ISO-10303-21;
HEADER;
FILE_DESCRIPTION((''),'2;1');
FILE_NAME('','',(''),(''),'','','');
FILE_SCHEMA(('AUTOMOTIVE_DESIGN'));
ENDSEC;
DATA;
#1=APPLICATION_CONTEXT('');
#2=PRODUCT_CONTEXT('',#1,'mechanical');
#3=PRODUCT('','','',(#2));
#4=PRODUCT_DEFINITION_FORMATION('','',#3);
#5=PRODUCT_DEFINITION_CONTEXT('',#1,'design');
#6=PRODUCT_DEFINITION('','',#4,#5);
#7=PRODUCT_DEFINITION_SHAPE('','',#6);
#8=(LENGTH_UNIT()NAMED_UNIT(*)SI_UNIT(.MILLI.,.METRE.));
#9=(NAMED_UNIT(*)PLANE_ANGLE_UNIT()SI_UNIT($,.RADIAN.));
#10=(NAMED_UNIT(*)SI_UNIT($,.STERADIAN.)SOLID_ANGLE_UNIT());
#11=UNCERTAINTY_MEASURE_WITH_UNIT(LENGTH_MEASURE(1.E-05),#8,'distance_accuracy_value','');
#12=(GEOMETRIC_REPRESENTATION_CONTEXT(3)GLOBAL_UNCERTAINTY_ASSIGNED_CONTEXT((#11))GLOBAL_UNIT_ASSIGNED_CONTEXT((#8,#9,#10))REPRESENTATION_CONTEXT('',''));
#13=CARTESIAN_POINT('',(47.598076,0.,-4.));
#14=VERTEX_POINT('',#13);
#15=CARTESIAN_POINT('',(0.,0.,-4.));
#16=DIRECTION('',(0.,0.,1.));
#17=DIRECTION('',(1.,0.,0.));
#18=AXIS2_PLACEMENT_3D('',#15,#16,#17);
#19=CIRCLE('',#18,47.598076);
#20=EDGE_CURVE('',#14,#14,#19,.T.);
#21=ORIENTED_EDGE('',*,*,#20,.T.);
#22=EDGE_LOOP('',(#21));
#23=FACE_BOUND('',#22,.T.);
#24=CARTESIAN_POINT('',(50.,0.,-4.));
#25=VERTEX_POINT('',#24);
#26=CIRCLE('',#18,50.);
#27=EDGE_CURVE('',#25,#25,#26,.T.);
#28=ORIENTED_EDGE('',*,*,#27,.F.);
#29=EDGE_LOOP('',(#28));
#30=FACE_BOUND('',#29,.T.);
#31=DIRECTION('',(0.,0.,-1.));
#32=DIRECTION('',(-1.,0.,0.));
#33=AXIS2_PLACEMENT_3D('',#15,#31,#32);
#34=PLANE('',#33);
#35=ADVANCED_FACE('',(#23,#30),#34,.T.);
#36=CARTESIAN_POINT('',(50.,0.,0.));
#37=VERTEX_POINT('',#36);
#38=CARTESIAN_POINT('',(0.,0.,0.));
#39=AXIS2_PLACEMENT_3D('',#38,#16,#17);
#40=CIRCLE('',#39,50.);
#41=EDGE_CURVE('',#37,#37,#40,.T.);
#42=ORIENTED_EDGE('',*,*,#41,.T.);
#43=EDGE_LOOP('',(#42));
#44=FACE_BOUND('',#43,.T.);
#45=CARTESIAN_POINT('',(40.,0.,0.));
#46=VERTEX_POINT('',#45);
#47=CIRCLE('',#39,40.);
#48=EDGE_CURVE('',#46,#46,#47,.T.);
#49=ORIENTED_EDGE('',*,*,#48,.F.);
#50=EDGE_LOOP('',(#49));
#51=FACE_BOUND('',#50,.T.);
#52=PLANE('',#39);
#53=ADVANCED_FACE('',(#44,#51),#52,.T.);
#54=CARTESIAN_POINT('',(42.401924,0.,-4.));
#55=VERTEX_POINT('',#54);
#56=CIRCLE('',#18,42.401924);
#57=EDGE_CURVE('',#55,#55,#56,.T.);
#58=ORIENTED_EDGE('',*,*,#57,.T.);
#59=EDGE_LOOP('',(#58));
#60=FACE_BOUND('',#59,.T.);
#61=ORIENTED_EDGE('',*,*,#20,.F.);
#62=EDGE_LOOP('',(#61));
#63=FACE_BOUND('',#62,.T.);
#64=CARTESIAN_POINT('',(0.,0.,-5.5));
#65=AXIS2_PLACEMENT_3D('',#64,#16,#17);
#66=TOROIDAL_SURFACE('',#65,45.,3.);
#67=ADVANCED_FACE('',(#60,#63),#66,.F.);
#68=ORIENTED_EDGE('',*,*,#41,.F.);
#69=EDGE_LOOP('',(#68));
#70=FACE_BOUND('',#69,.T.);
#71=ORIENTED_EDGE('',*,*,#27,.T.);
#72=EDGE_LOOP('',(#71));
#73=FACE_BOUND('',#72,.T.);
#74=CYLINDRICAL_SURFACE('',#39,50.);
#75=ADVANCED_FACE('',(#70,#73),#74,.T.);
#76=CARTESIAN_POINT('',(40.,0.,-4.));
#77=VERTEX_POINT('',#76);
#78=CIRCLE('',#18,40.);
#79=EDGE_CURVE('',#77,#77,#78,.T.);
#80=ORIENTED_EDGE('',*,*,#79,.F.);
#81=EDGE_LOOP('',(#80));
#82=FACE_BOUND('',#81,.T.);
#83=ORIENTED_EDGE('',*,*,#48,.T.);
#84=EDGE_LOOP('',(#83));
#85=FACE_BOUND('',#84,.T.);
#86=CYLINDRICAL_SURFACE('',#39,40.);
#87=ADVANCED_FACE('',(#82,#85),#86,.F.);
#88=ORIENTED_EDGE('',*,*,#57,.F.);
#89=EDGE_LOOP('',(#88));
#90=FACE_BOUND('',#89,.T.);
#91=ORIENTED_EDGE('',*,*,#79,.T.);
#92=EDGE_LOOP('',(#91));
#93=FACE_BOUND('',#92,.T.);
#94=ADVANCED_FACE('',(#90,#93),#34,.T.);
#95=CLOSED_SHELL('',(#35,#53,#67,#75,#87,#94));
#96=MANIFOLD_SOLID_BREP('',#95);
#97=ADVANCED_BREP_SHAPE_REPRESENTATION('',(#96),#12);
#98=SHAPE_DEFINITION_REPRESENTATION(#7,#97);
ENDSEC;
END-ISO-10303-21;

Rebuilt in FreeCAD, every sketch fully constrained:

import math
import FreeCAD as App
import Part
import Sketcher
from FreeCAD import Vector

doc = App.newDocument("Part")
body = doc.addObject("PartDesign::Body", "Body")

sketch1 = body.newObject("Sketcher::SketchObject", "Sketch")
sketch1.AttachmentSupport = (doc.getObject("XZ_Plane"), [""])
sketch1.MapMode = "FlatFace"
sketch1.addGeometry(Part.LineSegment(Vector(-50, 0, 0), Vector(-40, 0, 0)), False)
sketch1.addGeometry(Part.LineSegment(Vector(-40, 0, 0), Vector(-40, -4, 0)), False)
sketch1.addGeometry(Part.LineSegment(Vector(-40, -4, 0), Vector(-42.4, -4, 0)), False)
sketch1.addGeometry(Part.ArcOfCircle(Part.Circle(Vector(-45, -5.5, 0), Vector(0, 0, 1), 3), math.radians(30), math.radians(150)), False)
sketch1.addGeometry(Part.LineSegment(Vector(-47.6, -4, 0), Vector(-50, -4, 0)), False)
sketch1.addGeometry(Part.LineSegment(Vector(-50, -4, 0), Vector(-50, 0, 0)), False)
sketch1.addConstraint(Sketcher.Constraint("Coincident", 0, 2, 1, 1))
sketch1.addConstraint(Sketcher.Constraint("Coincident", 1, 2, 2, 1))
sketch1.addConstraint(Sketcher.Constraint("Coincident", 2, 2, 3, 1))
sketch1.addConstraint(Sketcher.Constraint("Coincident", 3, 2, 4, 1))
sketch1.addConstraint(Sketcher.Constraint("Coincident", 4, 2, 5, 1))
sketch1.addConstraint(Sketcher.Constraint("Coincident", 5, 2, 0, 1))
sketch1.addConstraint(Sketcher.Constraint("Horizontal", 0))
sketch1.addConstraint(Sketcher.Constraint("Vertical", 1))
sketch1.addConstraint(Sketcher.Constraint("Horizontal", 2))
sketch1.addConstraint(Sketcher.Constraint("Horizontal", 4))
sketch1.addConstraint(Sketcher.Constraint("Vertical", 5))
sketch1.addConstraint(Sketcher.Constraint("PointOnObject", 0, 2, -1))
sketch1.addConstraint(Sketcher.Constraint("Horizontal", 2, 2, 3, 2))
sketch1.addConstraint(Sketcher.Constraint("Equal", 2, 4))
sketch1.addConstraint(Sketcher.Constraint("Radius", 3, 3.0))
sketch1.addConstraint(Sketcher.Constraint("DistanceX", 0, 1, 0, 2, 10.0))
sketch1.addConstraint(Sketcher.Constraint("DistanceY", 1, 2, 1, 1, 4.0))
sketch1.addConstraint(Sketcher.Constraint("DistanceX", 3, 3, -1, 1, 45.0))
sketch1.addConstraint(Sketcher.Constraint("DistanceY", 3, 3, -1, 1, 5.5))
revolution = body.newObject("PartDesign::Revolution", "Revolution")
revolution.Profile = sketch1
revolution.ReferenceAxis = (sketch1, ["V_Axis"])
revolution.Angle = 360

doc.recompute()
